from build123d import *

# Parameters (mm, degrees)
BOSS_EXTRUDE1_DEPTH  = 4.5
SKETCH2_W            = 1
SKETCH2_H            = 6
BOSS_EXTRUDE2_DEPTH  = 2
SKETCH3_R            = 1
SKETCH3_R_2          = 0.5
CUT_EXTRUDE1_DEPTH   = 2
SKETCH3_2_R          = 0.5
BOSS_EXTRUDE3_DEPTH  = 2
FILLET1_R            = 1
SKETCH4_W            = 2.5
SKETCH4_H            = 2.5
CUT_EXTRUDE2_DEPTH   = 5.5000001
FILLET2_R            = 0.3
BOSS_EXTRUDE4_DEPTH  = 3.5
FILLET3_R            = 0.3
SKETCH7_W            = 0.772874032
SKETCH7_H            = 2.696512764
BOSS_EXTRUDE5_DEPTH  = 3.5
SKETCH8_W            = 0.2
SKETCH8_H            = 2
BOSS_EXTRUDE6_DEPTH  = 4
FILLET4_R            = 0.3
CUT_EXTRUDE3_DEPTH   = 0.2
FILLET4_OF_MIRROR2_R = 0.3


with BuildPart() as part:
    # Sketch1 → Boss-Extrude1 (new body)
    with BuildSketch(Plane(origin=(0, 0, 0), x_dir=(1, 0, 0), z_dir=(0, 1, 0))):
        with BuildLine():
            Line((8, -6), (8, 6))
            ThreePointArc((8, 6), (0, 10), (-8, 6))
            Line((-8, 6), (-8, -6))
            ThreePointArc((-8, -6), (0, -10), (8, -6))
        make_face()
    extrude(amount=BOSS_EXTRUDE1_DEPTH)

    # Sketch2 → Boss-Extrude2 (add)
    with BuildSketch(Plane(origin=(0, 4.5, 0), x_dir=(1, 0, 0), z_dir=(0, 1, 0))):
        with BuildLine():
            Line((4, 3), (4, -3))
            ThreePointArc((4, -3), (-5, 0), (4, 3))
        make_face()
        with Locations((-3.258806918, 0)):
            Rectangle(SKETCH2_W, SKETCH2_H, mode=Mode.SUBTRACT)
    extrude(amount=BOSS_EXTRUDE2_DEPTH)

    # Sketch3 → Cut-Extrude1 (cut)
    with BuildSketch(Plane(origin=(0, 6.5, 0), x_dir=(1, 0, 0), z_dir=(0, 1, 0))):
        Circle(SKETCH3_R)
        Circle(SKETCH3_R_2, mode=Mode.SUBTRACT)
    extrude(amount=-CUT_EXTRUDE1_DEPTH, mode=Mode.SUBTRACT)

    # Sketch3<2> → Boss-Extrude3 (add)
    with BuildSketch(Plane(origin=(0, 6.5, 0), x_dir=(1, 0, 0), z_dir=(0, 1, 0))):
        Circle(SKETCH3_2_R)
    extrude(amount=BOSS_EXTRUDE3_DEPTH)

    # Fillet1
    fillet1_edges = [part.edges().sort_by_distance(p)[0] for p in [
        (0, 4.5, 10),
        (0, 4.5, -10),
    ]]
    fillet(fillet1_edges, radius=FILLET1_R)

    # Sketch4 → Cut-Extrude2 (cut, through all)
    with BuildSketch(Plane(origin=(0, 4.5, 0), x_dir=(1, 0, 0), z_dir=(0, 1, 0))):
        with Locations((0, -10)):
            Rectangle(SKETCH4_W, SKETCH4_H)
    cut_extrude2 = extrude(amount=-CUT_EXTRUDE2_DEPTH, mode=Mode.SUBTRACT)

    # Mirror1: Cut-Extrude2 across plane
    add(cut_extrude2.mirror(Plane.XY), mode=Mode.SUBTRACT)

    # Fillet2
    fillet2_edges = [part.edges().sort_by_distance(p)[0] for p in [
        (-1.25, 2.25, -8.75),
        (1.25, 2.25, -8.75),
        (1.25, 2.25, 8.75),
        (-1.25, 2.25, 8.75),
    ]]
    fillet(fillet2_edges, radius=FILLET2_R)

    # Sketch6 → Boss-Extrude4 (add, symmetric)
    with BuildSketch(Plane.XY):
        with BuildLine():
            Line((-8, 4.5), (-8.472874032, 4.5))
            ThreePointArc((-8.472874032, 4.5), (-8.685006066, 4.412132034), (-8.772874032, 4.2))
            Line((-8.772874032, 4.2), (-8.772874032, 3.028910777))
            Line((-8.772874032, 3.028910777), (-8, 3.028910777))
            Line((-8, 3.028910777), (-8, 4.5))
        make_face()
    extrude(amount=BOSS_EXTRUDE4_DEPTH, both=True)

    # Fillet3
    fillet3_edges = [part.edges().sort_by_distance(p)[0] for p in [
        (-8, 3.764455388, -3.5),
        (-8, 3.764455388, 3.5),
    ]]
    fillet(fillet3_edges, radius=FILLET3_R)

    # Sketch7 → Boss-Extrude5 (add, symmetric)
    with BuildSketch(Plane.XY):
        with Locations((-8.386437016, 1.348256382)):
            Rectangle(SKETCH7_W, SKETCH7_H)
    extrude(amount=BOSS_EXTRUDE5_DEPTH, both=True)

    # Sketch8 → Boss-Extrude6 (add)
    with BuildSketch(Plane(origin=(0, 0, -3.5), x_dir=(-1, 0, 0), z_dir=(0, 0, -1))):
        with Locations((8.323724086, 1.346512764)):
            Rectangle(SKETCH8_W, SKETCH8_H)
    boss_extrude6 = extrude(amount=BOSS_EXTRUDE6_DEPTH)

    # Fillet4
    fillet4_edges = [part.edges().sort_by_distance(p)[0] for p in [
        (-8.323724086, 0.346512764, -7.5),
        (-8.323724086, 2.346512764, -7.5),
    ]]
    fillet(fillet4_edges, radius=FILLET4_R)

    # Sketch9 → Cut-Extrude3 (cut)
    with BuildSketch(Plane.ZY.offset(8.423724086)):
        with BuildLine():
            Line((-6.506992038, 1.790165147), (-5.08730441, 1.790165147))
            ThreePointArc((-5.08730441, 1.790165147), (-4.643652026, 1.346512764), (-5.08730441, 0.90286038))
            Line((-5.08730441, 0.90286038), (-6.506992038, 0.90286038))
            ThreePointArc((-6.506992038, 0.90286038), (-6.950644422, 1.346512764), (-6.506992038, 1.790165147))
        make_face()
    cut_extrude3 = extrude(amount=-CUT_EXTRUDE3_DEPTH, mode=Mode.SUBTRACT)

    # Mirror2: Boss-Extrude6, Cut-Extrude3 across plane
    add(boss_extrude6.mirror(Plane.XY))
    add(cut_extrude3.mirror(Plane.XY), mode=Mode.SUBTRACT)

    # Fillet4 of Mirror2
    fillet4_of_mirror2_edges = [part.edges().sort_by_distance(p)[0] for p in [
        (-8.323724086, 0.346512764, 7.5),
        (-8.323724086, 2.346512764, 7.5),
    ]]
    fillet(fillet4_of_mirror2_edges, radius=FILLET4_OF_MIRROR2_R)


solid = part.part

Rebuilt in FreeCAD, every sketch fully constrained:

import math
import FreeCAD as App
import Part
import Sketcher
Q = App.Units.Quantity


def edges_at(feature, points):
    """Names of the edges that pass closest to the given points."""
    edges = feature.Shape.Edges
    near = lambda p: min(range(len(edges)), key=lambda i: edges[i].distToShape(Part.Vertex(*p))[0])
    return sorted({f"Edge{near(p) + 1}" for p in points})


def add_polygon(sketch, points):
    """Adds a closed chain of lines whose ends are joined by coincident constraints."""
    first, n = sketch.GeometryCount, len(points)
    for a, b in zip(points, points[1:] + points[:1]):
        sketch.addGeometry(Part.LineSegment(App.Vector(*a, 0), App.Vector(*b, 0)), False)
    for i in range(n):
        sketch.addConstraint(Sketcher.Constraint("Coincident", first + i, 2, first + (i + 1) % n, 1))

doc = App.newDocument("Part")
params = doc.addObject("Spreadsheet::Sheet", "Params")
for row, (alias, value) in enumerate([
    ("sketch1_radius", "10 mm"),
    ("sketch1_height", "12 mm"),
    ("pad1_length", "4.5 mm"),
    ("sketch2_radius", "5 mm"),
    ("sketch2_width", "1 mm"),
    ("sketch2_height", "6 mm"),
    ("pad2_length", "2 mm"),
    ("sketch3_diameter", "2 mm"),
    ("sketch3_diameter2", "1 mm"),
    ("pocket1_length", "2 mm"),
    ("sketch4_diameter", "1 mm"),
    ("pad3_length", "2 mm"),
    ("fillet_radius", "1 mm"),
    ("sketch5_width", "2.5 mm"),
    ("fillet2_radius", "0.3 mm"),
    ("sketch6_radius", "0.3 mm"),
    ("pad4_length", "7 mm"),
    ("fillet3_radius", "0.3 mm"),
    ("pad5_length", "7 mm"),
    ("sketch8_height", "2 mm"),
    ("sketch8_width", "0.2 mm"),
    ("pad6_length", "4 mm"),
    ("fillet4_radius", "0.3 mm"),
    ("pocket3_length", "0.2 mm"),
    ("fillet5_radius", "0.3 mm"),
], start=1):
    params.set(f"A{row}", alias)
    params.set(f"B{row}", "=" + value)
    params.setAlias(f"B{row}", alias)

body = doc.addObject("PartDesign::Body", "Body")

# Sketch on XZ plane
sketch1 = body.newObject("Sketcher::SketchObject", "Sketch")
sketch1.AttachmentSupport = (doc.getObject("XZ_Plane"), [""])
sketch1.MapMode = "FlatFace"
sketch1.addGeometry([
    Part.LineSegment(App.Vector(8, 6, 0), App.Vector(8, -6, 0)),
    Part.ArcOfCircle(Part.Circle(App.Vector(0, 0, 0), App.Vector(0, 0, 1), 10), math.radians(-143), math.radians(-37)),
    Part.LineSegment(App.Vector(-8, -6, 0), App.Vector(-8, 6, 0)),
    Part.ArcOfCircle(Part.Circle(App.Vector(0, 0, 0), App.Vector(0, 0, 1), 10), math.radians(37), math.radians(143)),
], False)
sketch1.addConstraint([
    Sketcher.Constraint("Coincident", 0, 2, 1, 2),
    Sketcher.Constraint("Coincident", 1, 1, 2, 1),
    Sketcher.Constraint("Coincident", 2, 2, 3, 2),
    Sketcher.Constraint("Coincident", 3, 1, 0, 1),
    Sketcher.Constraint("Vertical", 0),
    Sketcher.Constraint("Vertical", 2),
    Sketcher.Constraint("Coincident", 1, 3, -1, 1),
    Sketcher.Constraint("Coincident", 3, 3, -1, 1),
    Sketcher.Constraint("Equal", 1, 3),
    Sketcher.Constraint("Horizontal", 0, 2, 1, 1),
    Sketcher.Constraint("Radius", 1, Q("10 mm")),
    Sketcher.Constraint("DistanceY", 0, 2, 0, 1, Q("12 mm")),
])
sketch1.setExpression("Constraints[10]", "Params.sketch1_radius")
sketch1.setExpression("Constraints[11]", "Params.sketch1_height")
pad1 = body.newObject("PartDesign::Pad", "Pad")
pad1.Profile = sketch1
pad1.setExpression("Length", "Params.pad1_length")
pad1.Reversed = True

# Sketch on XZ plane
sketch2 = body.newObject("Sketcher::SketchObject", "Sketch001")
sketch2.AttachmentSupport = (doc.getObject("XZ_Plane"), [""])
sketch2.MapMode = "FlatFace"
sketch2.AttachmentOffset = App.Placement(App.Vector(0, 0, -4.5), App.Rotation())
sketch2.addGeometry(Part.LineSegment(App.Vector(4, 3, 0), App.Vector(4, -3, 0)), False)  # 0
sketch2.addGeometry(Part.ArcOfCircle(Part.Circle(App.Vector(0, 0, 0), App.Vector(0, 0, 1), 5), math.radians(37), math.radians(323)), False)  # 1
add_polygon(sketch2, [(-3.8, 3), (-3.8, -3), (-2.8, -3), (-2.8, 3)])  # lines 2-5
sketch2.addConstraint([
    Sketcher.Constraint("Coincident", 0, 1, 1, 1),
    Sketcher.Constraint("Coincident", 1, 2, 0, 2),
    Sketcher.Constraint("Vertical", 0),
    Sketcher.Constraint("Vertical", 2),
    Sketcher.Constraint("Horizontal", 3),
    Sketcher.Constraint("Vertical", 4),
    Sketcher.Constraint("Horizontal", 5),
    Sketcher.Constraint("Coincident", 1, 3, -1, 1),
    Sketcher.Constraint("Horizontal", 1, 2, 2, 2),
    Sketcher.Constraint("Horizontal", 0, 1, 4, 2),
    Sketcher.Constraint("Radius", 1, Q("5 mm")),
    Sketcher.Constraint("DistanceX", 3, 1, 3, 2, Q("1 mm")),
    Sketcher.Constraint("DistanceY", 0, 2, 0, 1, Q("6 mm")),
    Sketcher.Constraint("DistanceX", 2, 2, -1, 1, Q("3.758807 mm")),
])
sketch2.setExpression("Constraints[14]", "Params.sketch2_radius")
sketch2.setExpression("Constraints[15]", "Params.sketch2_width")
sketch2.setExpression("Constraints[16]", "Params.sketch2_height")
pad2 = body.newObject("PartDesign::Pad", "Pad001")
pad2.Profile = sketch2
pad2.setExpression("Length", "Params.pad2_length")
pad2.Reversed = True

# Sketch on XZ plane
sketch3 = body.newObject("Sketcher::SketchObject", "Sketch002")
sketch3.AttachmentSupport = (doc.getObject("XZ_Plane"), [""])
sketch3.MapMode = "FlatFace"
sketch3.AttachmentOffset = App.Placement(App.Vector(0, 0, -6.5), App.Rotation())
sketch3.addGeometry([
    Part.Circle(App.Vector(0, 0, 0), App.Vector(0, 0, 1), 1),
    Part.Circle(App.Vector(0, 0, 0), App.Vector(0, 0, 1), 0.5),
], False)
sketch3.addConstraint([
    Sketcher.Constraint("Coincident", 0, 3, -1, 1),
    Sketcher.Constraint("Coincident", 1, 3, -1, 1),
    Sketcher.Constraint("Diameter", 0, Q("2 mm")),
    Sketcher.Constraint("Diameter", 1, Q("1 mm")),
])
sketch3.setExpression("Constraints[2]", "Params.sketch3_diameter")
sketch3.setExpression("Constraints[3]", "Params.sketch3_diameter2")
pocket1 = body.newObject("PartDesign::Pocket", "Pocket")
pocket1.Profile = sketch3
pocket1.setExpression("Length", "Params.pocket1_length")
pocket1.Reversed = True

# Sketch on XZ plane
sketch4 = body.newObject("Sketcher::SketchObject", "Sketch003")
sketch4.AttachmentSupport = (doc.getObject("XZ_Plane"), [""])
sketch4.MapMode = "FlatFace"
sketch4.AttachmentOffset = App.Placement(App.Vector(0, 0, -6.5), App.Rotation())
sketch4.addGeometry(Part.Circle(App.Vector(0, 0, 0), App.Vector(0, 0, 1), 0.5), False)
sketch4.addConstraint([
    Sketcher.Constraint("Coincident", 0, 3, -1, 1),
    Sketcher.Constraint("Diameter", 0, Q("1 mm")),
])
sketch4.setExpression("Constraints[1]", "Params.sketch4_diameter")
pad3 = body.newObject("PartDesign::Pad", "Pad002")
pad3.Profile = sketch4
pad3.setExpression("Length", "Params.pad3_length")
pad3.Reversed = True
doc.recompute()

fillet = body.newObject("PartDesign::Fillet", "Fillet")
fillet.Base = (pad3, edges_at(pad3, [(0, 4.5, 10), (0, 4.5, -10)]))
fillet.setExpression("Radius", "Params.fillet_radius")

# Sketch on XZ plane
sketch5 = body.newObject("Sketcher::SketchObject", "Sketch004")
sketch5.AttachmentSupport = (doc.getObject("XZ_Plane"), [""])
sketch5.MapMode = "FlatFace"
sketch5.AttachmentOffset = App.Placement(App.Vector(0, 0, -4.5), App.Rotation())
add_polygon(sketch5, [(-1.2, 8.8), (-1.2, 11.2), (1.2, 11.2), (1.2, 8.8)])  # lines 0-3
sketch5.addConstraint([
    Sketcher.Constraint("Vertical", 0),
    Sketcher.Constraint("Horizontal", 1),
    Sketcher.Constraint("Vertical", 2),
    Sketcher.Constraint("Horizontal", 3),
    Sketcher.Constraint("Equal", 3, 0),
    Sketcher.Constraint("DistanceX", 1, 1, 1, 2, Q("2.5 mm")),
    Sketcher.Constraint("DistanceX", 0, 2, -1, 1, Q("1.25 mm")),
    Sketcher.Constraint("DistanceY", -1, 1, 0, 2, Q("11.25 mm")),
])
sketch5.setExpression("Constraints[9]", "Params.sketch5_width")
pocket2 = body.newObject("PartDesign::Pocket", "Pocket001")
pocket2.Profile = sketch5
pocket2.Type = "ThroughAll"
pocket2.Reversed = True
doc.recompute()

mirrored = body.newObject("PartDesign::Mirrored", "Mirrored")
mirrored.Originals = [pocket2]
mirrored.MirrorPlane = (doc.getObject("XY_Plane"), [""])
body.Tip = mirrored
doc.recompute()

fillet2 = body.newObject("PartDesign::Fillet", "Fillet001")
fillet2.Base = (mirrored, edges_at(mirrored, [
    (-1.25, 2.25, -8.75),
    (1.25, 2.25, -8.75),
    (1.25, 2.25, 8.75),
    (-1.25, 2.25, 8.75),
]))
fillet2.setExpression("Radius", "Params.fillet2_radius")

# Sketch on XY plane
sketch6 = body.newObject("Sketcher::SketchObject", "Sketch005")
sketch6.AttachmentSupport = (doc.getObject("XY_Plane"), [""])
sketch6.MapMode = "FlatFace"
sketch6.addGeometry([
    Part.LineSegment(App.Vector(-8, 4.5, 0), App.Vector(-8.47, 4.5, 0)),  # 0
    Part.ArcOfCircle(Part.Circle(App.Vector(-8.47, 4.2, 0), App.Vector(0, 0, 1), 0.3), math.radians(90), math.radians(180)),  # 1
    Part.LineSegment(App.Vector(-8.77, 4.2, 0), App.Vector(-8.77, 3.03, 0)),  # 2
    Part.LineSegment(App.Vector(-8.77, 3.03, 0), App.Vector(-8, 3.03, 0)),  # 3
    Part.LineSegment(App.Vector(-8, 3.03, 0), App.Vector(-8, 4.5, 0)),  # 4
], False)
sketch6.addConstraint([
    Sketcher.Constraint("Tangent", 0, 2, 1, 1),
    Sketcher.Constraint("Tangent", 1, 2, 2, 1),
    Sketcher.Constraint("Coincident", 2, 2, 3, 1),
    Sketcher.Constraint("Coincident", 3, 2, 4, 1),
    Sketcher.Constraint("Coincident", 4, 2, 0, 1),
    Sketcher.Constraint("Horizontal", 0),
    Sketcher.Constraint("Vertical", 2),
    Sketcher.Constraint("Horizontal", 3),
    Sketcher.Constraint("Vertical", 4),
    Sketcher.Constraint("Radius", 1, Q("0.3 mm")),
    Sketcher.Constraint("DistanceX", 3, 2, -1, 1, Q("8 mm")),
    Sketcher.Constraint("DistanceY", -1, 1, 1, 3, Q("4.2 mm")),
    Sketcher.Constraint("DistanceY", 2, 2, 2, 1, Q("1.171089 mm")),
    Sketcher.Constraint("DistanceX", 0, 2, 0, 1, Q("0.472874 mm")),
])
sketch6.setExpression("Constraints[9]", "Params.sketch6_radius")
pad4 = body.newObject("PartDesign::Pad", "Pad003")
pad4.Profile = sketch6
pad4.setExpression("Length", "Params.pad4_length")
pad4.Midplane = True
doc.recompute()

fillet3 = body.newObject("PartDesign::Fillet", "Fillet002")
fillet3.Base = (pad4, edges_at(pad4, [(-8, 3.764, -3.5), (-8, 3.764, 3.5)]))
fillet3.setExpression("Radius", "Params.fillet3_radius")

# Sketch on XY plane
sketch7 = body.newObject("Sketcher::SketchObject", "Sketch006")
sketch7.AttachmentSupport = (doc.getObject("XY_Plane"), [""])
sketch7.MapMode = "FlatFace"
add_polygon(sketch7, [(-8.8, 2.7), (-8.8, 0), (-8, 0), (-8, 2.7)])  # lines 0-3
sketch7.addConstraint([
    Sketcher.Constraint("Vertical", 0),
    Sketcher.Constraint("Horizontal", 1),
    Sketcher.Constraint("Vertical", 2),
    Sketcher.Constraint("Horizontal", 3),
    Sketcher.Constraint("PointOnObject", 0, 2, -1),
    Sketcher.Constraint("DistanceX", 1, 2, -1, 1, Q("8 mm")),
    Sketcher.Constraint("DistanceX", 1, 1, 1, 2, Q("0.772874 mm")),
    Sketcher.Constraint("DistanceY", 0, 2, 0, 1, Q("2.696513 mm")),
])
pad5 = body.newObject("PartDesign::Pad", "Pad004")
pad5.Profile = sketch7
pad5.setExpression("Length", "Params.pad5_length")
pad5.Midplane = True

# Sketch on XY plane
sketch8 = body.newObject("Sketcher::SketchObject", "Sketch007")
sketch8.AttachmentSupport = (doc.getObject("XY_Plane"), [""])
sketch8.MapMode = "FlatFace"
sketch8.AttachmentOffset = App.Placement(App.Vector(0, 0, -3.5), App.Rotation())
add_polygon(sketch8, [(-8.22, 2.35), (-8.22, 0.35), (-8.42, 0.35), (-8.42, 2.35)])  # lines 0-3
sketch8.addConstraint([
    Sketcher.Constraint("Vertical", 0),
    Sketcher.Constraint("Horizontal", 1),
    Sketcher.Constraint("Vertical", 2),
    Sketcher.Constraint("Horizontal", 3),
    Sketcher.Constraint("DistanceY", 0, 2, 0, 1, Q("2 mm")),
    Sketcher.Constraint("DistanceX", 1, 2, 1, 1, Q("0.2 mm")),
    Sketcher.Constraint("DistanceX", 0, 2, -1, 1, Q("8.223724 mm")),
    Sketcher.Constraint("DistanceY", -1, 1, 0, 2, Q("0.346513 mm")),
])
sketch8.setExpression("Constraints[8]", "Params.sketch8_height")
sketch8.setExpression("Constraints[9]", "Params.sketch8_width")
pad6 = body.newObject("PartDesign::Pad", "Pad005")
pad6.Profile = sketch8
pad6.setExpression("Length", "Params.pad6_length")
pad6.Reversed = True
doc.recompute()

fillet4 = body.newObject("PartDesign::Fillet", "Fillet003")
fillet4.Base = (pad6, edges_at(pad6, [(-8.324, 0.347, -7.5), (-8.324, 2.347, -7.5)]))
fillet4.setExpression("Radius", "Params.fillet4_radius")

# Sketch on YZ plane
sketch9 = body.newObject("Sketcher::SketchObject", "Sketch008")
sketch9.AttachmentSupport = (doc.getObject("YZ_Plane"), [""])
sketch9.MapMode = "FlatFace"
sketch9.AttachmentOffset = App.Placement(App.Vector(0, 0, -8.423724), App.Rotation())
sketch9.addGeometry([
    Part.LineSegment(App.Vector(1.79, -5.09, 0), App.Vector(1.79, -6.51, 0)),
    Part.ArcOfCircle(Part.Circle(App.Vector(1.35, -6.51, 0), App.Vector(0, 0, 1), 0.44), math.radians(180), math.radians(360)),
    Part.LineSegment(App.Vector(0.9, -6.51, 0), App.Vector(0.9, -5.09, 0)),
    Part.ArcOfCircle(Part.Circle(App.Vector(1.35, -5.09, 0), App.Vector(0, 0, 1), 0.44), math.radians(0), math.radians(180)),
], False)
sketch9.addConstraint([
    Sketcher.Constraint("Tangent", 0, 2, 1, 2),
    Sketcher.Constraint("Tangent", 1, 1, 2, 1),
    Sketcher.Constraint("Tangent", 2, 2, 3, 2),
    Sketcher.Constraint("Tangent", 3, 1, 0, 1),
    Sketcher.Constraint("Vertical", 0),
    Sketcher.Constraint("Vertical", 2),
    Sketcher.Constraint("Radius", 1, Q("0.443652 mm")),
    Sketcher.Constraint("DistanceY", 0, 2, 0, 1, Q("1.419688 mm")),
    Sketcher.Constraint("DistanceX", -1, 1, 1, 1, Q("0.90286 mm")),
    Sketcher.Constraint("DistanceY", 1, 3, -1, 1, Q("6.506992 mm")),
])
pocket3 = body.newObject("PartDesign::Pocket", "Pocket002")
pocket3.Profile = sketch9
pocket3.setExpression("Length", "Params.pocket3_length")
pocket3.Reversed = True
doc.recompute()

mirrored2 = body.newObject("PartDesign::Mirrored", "Mirrored001")
mirrored2.Originals = [pad6, pocket3]
mirrored2.MirrorPlane = (doc.getObject("XY_Plane"), [""])
body.Tip = mirrored2
doc.recompute()

fillet5 = body.newObject("PartDesign::Fillet", "Fillet004")
fillet5.Base = (mirrored2, edges_at(mirrored2, [(-8.324, 0.347, 7.5), (-8.324, 2.347, 7.5)]))
fillet5.setExpression("Radius", "Params.fillet5_radius")

doc.recompute()
